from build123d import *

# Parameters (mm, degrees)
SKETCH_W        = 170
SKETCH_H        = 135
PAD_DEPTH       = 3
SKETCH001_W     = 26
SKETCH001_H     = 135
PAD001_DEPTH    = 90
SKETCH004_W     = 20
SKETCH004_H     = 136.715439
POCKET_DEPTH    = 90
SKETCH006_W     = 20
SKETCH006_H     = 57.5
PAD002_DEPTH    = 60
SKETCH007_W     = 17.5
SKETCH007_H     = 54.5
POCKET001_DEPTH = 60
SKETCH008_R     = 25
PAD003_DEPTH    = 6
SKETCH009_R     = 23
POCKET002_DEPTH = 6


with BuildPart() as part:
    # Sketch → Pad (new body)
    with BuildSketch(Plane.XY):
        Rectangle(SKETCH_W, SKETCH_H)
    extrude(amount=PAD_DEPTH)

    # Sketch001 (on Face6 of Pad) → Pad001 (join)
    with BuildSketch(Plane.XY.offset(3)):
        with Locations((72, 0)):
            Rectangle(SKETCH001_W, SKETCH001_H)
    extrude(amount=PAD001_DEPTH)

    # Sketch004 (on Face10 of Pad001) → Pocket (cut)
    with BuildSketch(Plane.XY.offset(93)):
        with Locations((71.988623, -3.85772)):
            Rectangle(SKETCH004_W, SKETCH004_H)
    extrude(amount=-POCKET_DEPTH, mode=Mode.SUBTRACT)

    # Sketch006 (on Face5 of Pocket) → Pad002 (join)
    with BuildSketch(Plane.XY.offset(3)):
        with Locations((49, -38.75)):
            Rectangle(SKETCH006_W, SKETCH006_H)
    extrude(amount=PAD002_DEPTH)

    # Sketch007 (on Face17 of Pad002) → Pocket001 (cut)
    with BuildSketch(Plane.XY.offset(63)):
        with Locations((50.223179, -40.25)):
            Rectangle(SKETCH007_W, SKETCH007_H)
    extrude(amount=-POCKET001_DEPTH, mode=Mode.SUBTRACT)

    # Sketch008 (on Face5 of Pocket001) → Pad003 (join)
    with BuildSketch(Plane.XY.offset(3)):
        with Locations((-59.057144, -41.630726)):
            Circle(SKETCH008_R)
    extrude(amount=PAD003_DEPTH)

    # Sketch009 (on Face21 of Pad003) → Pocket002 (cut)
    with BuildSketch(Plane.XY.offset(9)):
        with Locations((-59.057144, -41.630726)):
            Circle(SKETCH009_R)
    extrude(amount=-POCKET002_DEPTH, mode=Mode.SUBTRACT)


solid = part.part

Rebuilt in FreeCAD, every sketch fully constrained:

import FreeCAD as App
import Part
import Sketcher
from FreeCAD import Vector
Q = App.Units.Quantity

doc = App.newDocument("Part")
body = doc.addObject("PartDesign::Body", "Body")

sketch1 = doc.addObject("Sketcher::SketchObject", "Sketch")
body.addObject(sketch1)
sketch1.AttachmentSupport = (doc.XY_Plane, [""])
sketch1.MapMode = "FlatFace"
sketch1.addGeometry([
    Part.LineSegment(Vector(-85, 67.5, 0), Vector(-85, -67.5, 0)),
    Part.LineSegment(Vector(-85, -67.5, 0), Vector(85, -67.5, 0)),
    Part.LineSegment(Vector(85, -67.5, 0), Vector(85, 67.5, 0)),
    Part.LineSegment(Vector(85, 67.5, 0), Vector(-85, 67.5, 0)),
], False)
sketch1.addConstraint([
    Sketcher.Constraint("Coincident", 0, 2, 1, 1),
    Sketcher.Constraint("Coincident", 1, 2, 2, 1),
    Sketcher.Constraint("Coincident", 2, 2, 3, 1),
    Sketcher.Constraint("Coincident", 3, 2, 0, 1),
    Sketcher.Constraint("Vertical", 0),
    Sketcher.Constraint("Horizontal", 1),
    Sketcher.Constraint("Vertical", 2),
    Sketcher.Constraint("Horizontal", 3),
    Sketcher.Constraint("Symmetric", 0, 2, 2, 2, -1, 1),
    Sketcher.Constraint("DistanceX", 1, 1, 1, 2, Q("170 mm")),
    Sketcher.Constraint("DistanceY", 0, 2, 0, 1, Q("135 mm")),
])
pad1 = doc.addObject("PartDesign::Pad", "Pad")
body.addObject(pad1)
pad1.Profile = sketch1
pad1.Length = 3

sketch2 = doc.addObject("Sketcher::SketchObject", "Sketch001")
body.addObject(sketch2)
sketch2.AttachmentSupport = (doc.XY_Plane, [""])
sketch2.MapMode = "FlatFace"
sketch2.AttachmentOffset = App.Placement(Vector(0, 0, 3), App.Rotation())
sketch2.addGeometry([
    Part.LineSegment(Vector(59, 67.5, 0), Vector(59, -67.5, 0)),
    Part.LineSegment(Vector(59, -67.5, 0), Vector(85, -67.5, 0)),
    Part.LineSegment(Vector(85, -67.5, 0), Vector(85, 67.5, 0)),
    Part.LineSegment(Vector(85, 67.5, 0), Vector(59, 67.5, 0)),
], False)
sketch2.addConstraint([
    Sketcher.Constraint("Coincident", 0, 2, 1, 1),
    Sketcher.Constraint("Coincident", 1, 2, 2, 1),
    Sketcher.Constraint("Coincident", 2, 2, 3, 1),
    Sketcher.Constraint("Coincident", 3, 2, 0, 1),
    Sketcher.Constraint("Vertical", 0),
    Sketcher.Constraint("Horizontal", 1),
    Sketcher.Constraint("Vertical", 2),
    Sketcher.Constraint("Horizontal", 3),
    Sketcher.Constraint("DistanceX", 1, 1, 1, 2, Q("26 mm")),
    Sketcher.Constraint("DistanceY", 0, 2, 0, 1, Q("135 mm")),
    Sketcher.Constraint("DistanceX", -1, 1, 0, 2, Q("59 mm")),
    Sketcher.Constraint("DistanceY", 0, 2, -1, 1, Q("67.5 mm")),
])
pad2 = doc.addObject("PartDesign::Pad", "Pad001")
body.addObject(pad2)
pad2.Profile = sketch2
pad2.Length = 90

sketch3 = doc.addObject("Sketcher::SketchObject", "Sketch002")
body.addObject(sketch3)
sketch3.AttachmentSupport = (doc.XY_Plane, [""])
sketch3.MapMode = "FlatFace"
sketch3.AttachmentOffset = App.Placement(Vector(0, 0, 93), App.Rotation())
sketch3.addGeometry([
    Part.LineSegment(Vector(61.988623, 64.5, 0), Vector(61.988623, -72.21544, 0)),
    Part.LineSegment(Vector(61.988623, -72.21544, 0), Vector(81.988623, -72.21544, 0)),
    Part.LineSegment(Vector(81.988623, -72.21544, 0), Vector(81.988623, 64.5, 0)),
    Part.LineSegment(Vector(81.988623, 64.5, 0), Vector(61.988623, 64.5, 0)),
], False)
sketch3.addConstraint([
    Sketcher.Constraint("Coincident", 0, 2, 1, 1),
    Sketcher.Constraint("Coincident", 1, 2, 2, 1),
    Sketcher.Constraint("Coincident", 2, 2, 3, 1),
    Sketcher.Constraint("Coincident", 3, 2, 0, 1),
    Sketcher.Constraint("Vertical", 0),
    Sketcher.Constraint("Horizontal", 1),
    Sketcher.Constraint("Vertical", 2),
    Sketcher.Constraint("Horizontal", 3),
    Sketcher.Constraint("DistanceX", 1, 1, 1, 2, Q("20 mm")),
    Sketcher.Constraint("DistanceY", -1, 1, 2, 2, Q("64.5 mm")),
    Sketcher.Constraint("DistanceY", 0, 2, 0, 1, Q("136.715439 mm")),
    Sketcher.Constraint("DistanceX", -1, 1, 0, 2, Q("61.988623 mm")),
])
pocket1 = doc.addObject("PartDesign::Pocket", "Pocket")
body.addObject(pocket1)
pocket1.Profile = sketch3
pocket1.Length = 90

sketch4 = doc.addObject("Sketcher::SketchObject", "Sketch003")
body.addObject(sketch4)
sketch4.AttachmentSupport = (doc.XY_Plane, [""])
sketch4.MapMode = "FlatFace"
sketch4.AttachmentOffset = App.Placement(Vector(0, 0, 3), App.Rotation())
sketch4.addGeometry([
    Part.LineSegment(Vector(39, -10, 0), Vector(39, -67.5, 0)),
    Part.LineSegment(Vector(39, -67.5, 0), Vector(59, -67.5, 0)),
    Part.LineSegment(Vector(59, -67.5, 0), Vector(59, -10, 0)),
    Part.LineSegment(Vector(59, -10, 0), Vector(39, -10, 0)),
], False)
sketch4.addConstraint([
    Sketcher.Constraint("Coincident", 0, 2, 1, 1),
    Sketcher.Constraint("Coincident", 1, 2, 2, 1),
    Sketcher.Constraint("Coincident", 2, 2, 3, 1),
    Sketcher.Constraint("Coincident", 3, 2, 0, 1),
    Sketcher.Constraint("Vertical", 0),
    Sketcher.Constraint("Horizontal", 1),
    Sketcher.Constraint("Vertical", 2),
    Sketcher.Constraint("Horizontal", 3),
    Sketcher.Constraint("DistanceX", 1, 1, 1, 2, Q("20 mm")),
    Sketcher.Constraint("DistanceY", 0, 2, 0, 1, Q("57.5 mm")),
    Sketcher.Constraint("DistanceX", -1, 1, 0, 2, Q("39 mm")),
    Sketcher.Constraint("DistanceY", 2, 2, -1, 1, Q("10 mm")),
])
pad3 = doc.addObject("PartDesign::Pad", "Pad002")
body.addObject(pad3)
pad3.Profile = sketch4
pad3.Length = 60

sketch5 = doc.addObject("Sketcher::SketchObject", "Sketch004")
body.addObject(sketch5)
sketch5.AttachmentSupport = (doc.XY_Plane, [""])
sketch5.MapMode = "FlatFace"
sketch5.AttachmentOffset = App.Placement(Vector(0, 0, 63), App.Rotation())
sketch5.addGeometry([
    Part.LineSegment(Vector(41.473179, -13, 0), Vector(41.473179, -67.5, 0)),
    Part.LineSegment(Vector(41.473179, -67.5, 0), Vector(58.973179, -67.5, 0)),
    Part.LineSegment(Vector(58.973179, -67.5, 0), Vector(58.973179, -13, 0)),
    Part.LineSegment(Vector(58.973179, -13, 0), Vector(41.473179, -13, 0)),
], False)
sketch5.addConstraint([
    Sketcher.Constraint("Coincident", 0, 2, 1, 1),
    Sketcher.Constraint("Coincident", 1, 2, 2, 1),
    Sketcher.Constraint("Coincident", 2, 2, 3, 1),
    Sketcher.Constraint("Coincident", 3, 2, 0, 1),
    Sketcher.Constraint("Vertical", 0),
    Sketcher.Constraint("Horizontal", 1),
    Sketcher.Constraint("Vertical", 2),
    Sketcher.Constraint("Horizontal", 3),
    Sketcher.Constraint("DistanceX", 1, 1, 1, 2, Q("17.5 mm")),
    Sketcher.Constraint("DistanceY", 0, 2, 0, 1, Q("54.5 mm")),
    Sketcher.Constraint("DistanceY", 2, 2, -1, 1, Q("13 mm")),
    Sketcher.Constraint("DistanceX", -1, 1, 0, 2, Q("41.473179 mm")),
])
pocket2 = doc.addObject("PartDesign::Pocket", "Pocket001")
body.addObject(pocket2)
pocket2.Profile = sketch5
pocket2.Length = 60

sketch6 = doc.addObject("Sketcher::SketchObject", "Sketch005")
body.addObject(sketch6)
sketch6.AttachmentSupport = (doc.XY_Plane, [""])
sketch6.MapMode = "FlatFace"
sketch6.AttachmentOffset = App.Placement(Vector(0, 0, 3), App.Rotation())
sketch6.addGeometry(Part.Circle(Vector(-59.057144, -41.630726, 0), Vector(0, 0, 1), 25), False)
sketch6.addConstraint([
    Sketcher.Constraint("Diameter", 0, Q("50 mm")),
    Sketcher.Constraint("DistanceX", 0, 3, -1, 1, Q("59.057144 mm")),
    Sketcher.Constraint("DistanceY", 0, 3, -1, 1, Q("41.630726 mm")),
])
pad4 = doc.addObject("PartDesign::Pad", "Pad003")
body.addObject(pad4)
pad4.Profile = sketch6
pad4.Length = 6

sketch7 = doc.addObject("Sketcher::SketchObject", "Sketch006")
body.addObject(sketch7)
sketch7.AttachmentSupport = (doc.XY_Plane, [""])
sketch7.MapMode = "FlatFace"
sketch7.AttachmentOffset = App.Placement(Vector(0, 0, 9), App.Rotation())
sketch7.addGeometry(Part.Circle(Vector(-59.057144, -41.630726, 0), Vector(0, 0, 1), 23), False)
sketch7.addConstraint([
    Sketcher.Constraint("Diameter", 0, Q("46 mm")),
    Sketcher.Constraint("DistanceX", 0, 3, -1, 1, Q("59.057144 mm")),
    Sketcher.Constraint("DistanceY", 0, 3, -1, 1, Q("41.630726 mm")),
])
pocket3 = doc.addObject("PartDesign::Pocket", "Pocket002")
body.addObject(pocket3)
pocket3.Profile = sketch7
pocket3.Length = 6

doc.recompute()
